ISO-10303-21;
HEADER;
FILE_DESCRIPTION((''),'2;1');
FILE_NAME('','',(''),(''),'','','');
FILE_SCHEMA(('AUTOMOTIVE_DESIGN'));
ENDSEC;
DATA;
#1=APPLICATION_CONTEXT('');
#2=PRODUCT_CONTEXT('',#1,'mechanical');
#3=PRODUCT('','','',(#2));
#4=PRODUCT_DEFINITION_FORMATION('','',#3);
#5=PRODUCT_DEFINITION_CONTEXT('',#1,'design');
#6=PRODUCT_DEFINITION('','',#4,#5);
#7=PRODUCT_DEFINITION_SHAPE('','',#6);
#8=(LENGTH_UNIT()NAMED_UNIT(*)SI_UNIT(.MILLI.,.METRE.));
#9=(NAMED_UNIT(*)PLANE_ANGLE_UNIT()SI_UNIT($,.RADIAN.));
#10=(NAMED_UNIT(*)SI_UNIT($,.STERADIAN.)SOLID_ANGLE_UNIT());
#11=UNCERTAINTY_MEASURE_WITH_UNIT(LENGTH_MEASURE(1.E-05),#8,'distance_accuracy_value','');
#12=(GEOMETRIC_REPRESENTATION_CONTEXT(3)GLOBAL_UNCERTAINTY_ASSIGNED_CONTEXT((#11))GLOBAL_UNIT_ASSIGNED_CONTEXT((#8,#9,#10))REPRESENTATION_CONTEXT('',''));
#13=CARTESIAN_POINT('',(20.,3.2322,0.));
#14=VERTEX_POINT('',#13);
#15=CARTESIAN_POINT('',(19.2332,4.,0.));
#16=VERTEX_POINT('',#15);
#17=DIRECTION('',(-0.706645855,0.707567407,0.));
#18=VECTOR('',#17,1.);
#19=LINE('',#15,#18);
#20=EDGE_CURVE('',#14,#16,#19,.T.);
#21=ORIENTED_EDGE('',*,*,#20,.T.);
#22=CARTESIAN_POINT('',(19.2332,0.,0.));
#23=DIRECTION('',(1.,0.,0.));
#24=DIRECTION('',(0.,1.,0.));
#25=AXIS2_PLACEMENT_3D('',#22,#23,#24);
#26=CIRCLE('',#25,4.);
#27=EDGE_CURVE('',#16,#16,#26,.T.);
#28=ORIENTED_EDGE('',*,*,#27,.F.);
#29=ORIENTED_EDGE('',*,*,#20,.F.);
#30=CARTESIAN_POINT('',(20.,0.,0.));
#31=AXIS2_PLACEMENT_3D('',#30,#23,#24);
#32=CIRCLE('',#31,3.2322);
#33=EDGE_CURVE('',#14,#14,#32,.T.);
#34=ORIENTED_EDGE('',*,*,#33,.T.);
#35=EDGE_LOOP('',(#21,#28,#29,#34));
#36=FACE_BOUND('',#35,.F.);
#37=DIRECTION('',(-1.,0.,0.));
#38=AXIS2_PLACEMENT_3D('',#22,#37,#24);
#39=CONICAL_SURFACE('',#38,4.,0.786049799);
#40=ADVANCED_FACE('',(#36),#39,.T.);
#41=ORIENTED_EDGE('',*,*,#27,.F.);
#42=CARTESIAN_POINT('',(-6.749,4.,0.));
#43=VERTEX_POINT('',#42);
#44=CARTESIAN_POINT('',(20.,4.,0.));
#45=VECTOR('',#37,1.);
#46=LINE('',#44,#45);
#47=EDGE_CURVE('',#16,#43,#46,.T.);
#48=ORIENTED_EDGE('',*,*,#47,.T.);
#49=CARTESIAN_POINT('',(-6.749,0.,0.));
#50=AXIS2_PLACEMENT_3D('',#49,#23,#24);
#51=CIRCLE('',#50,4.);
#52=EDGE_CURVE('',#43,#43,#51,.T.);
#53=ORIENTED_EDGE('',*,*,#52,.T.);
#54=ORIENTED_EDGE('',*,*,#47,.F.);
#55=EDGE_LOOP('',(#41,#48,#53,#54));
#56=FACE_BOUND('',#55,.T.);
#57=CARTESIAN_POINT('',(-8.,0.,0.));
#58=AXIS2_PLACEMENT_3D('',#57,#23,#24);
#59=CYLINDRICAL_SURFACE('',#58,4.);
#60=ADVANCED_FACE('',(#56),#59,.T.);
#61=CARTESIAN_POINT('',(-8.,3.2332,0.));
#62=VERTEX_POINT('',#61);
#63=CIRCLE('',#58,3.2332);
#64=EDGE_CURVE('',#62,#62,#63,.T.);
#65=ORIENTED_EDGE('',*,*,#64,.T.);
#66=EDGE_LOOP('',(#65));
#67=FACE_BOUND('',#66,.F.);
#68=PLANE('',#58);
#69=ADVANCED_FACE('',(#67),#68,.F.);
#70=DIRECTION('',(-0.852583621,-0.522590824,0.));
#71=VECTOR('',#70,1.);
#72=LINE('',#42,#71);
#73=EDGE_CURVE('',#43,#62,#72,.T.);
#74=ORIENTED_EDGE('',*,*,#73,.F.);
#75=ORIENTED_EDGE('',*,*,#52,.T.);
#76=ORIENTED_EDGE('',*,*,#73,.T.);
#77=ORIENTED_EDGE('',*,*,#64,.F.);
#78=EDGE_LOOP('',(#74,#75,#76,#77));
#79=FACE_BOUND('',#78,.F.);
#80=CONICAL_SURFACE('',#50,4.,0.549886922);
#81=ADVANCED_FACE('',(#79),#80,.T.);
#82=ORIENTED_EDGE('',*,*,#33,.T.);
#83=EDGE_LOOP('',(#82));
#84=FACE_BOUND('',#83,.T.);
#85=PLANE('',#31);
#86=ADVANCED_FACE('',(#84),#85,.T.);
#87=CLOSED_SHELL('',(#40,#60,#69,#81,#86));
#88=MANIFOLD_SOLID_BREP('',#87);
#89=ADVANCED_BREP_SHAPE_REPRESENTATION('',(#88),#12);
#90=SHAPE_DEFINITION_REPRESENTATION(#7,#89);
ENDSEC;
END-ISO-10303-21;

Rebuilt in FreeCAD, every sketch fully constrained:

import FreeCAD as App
import Part
import Sketcher
from FreeCAD import Vector


def edges_at(feature, points):
    """Names of the edges that pass closest to the given points."""
    edges = feature.Shape.Edges
    near = lambda p: min(range(len(edges)), key=lambda i: edges[i].distToShape(Part.Vertex(*p))[0])
    return sorted({f"Edge{near(p) + 1}" for p in points})


def add_polygon(sketch, points):
    """Adds a closed chain of lines whose ends are joined by coincident constraints."""
    first, n = sketch.GeometryCount, len(points)
    for a, b in zip(points, points[1:] + points[:1]):
        sketch.addGeometry(Part.LineSegment(App.Vector(*a, 0), App.Vector(*b, 0)), False)
    for i in range(n):
        sketch.addConstraint(Sketcher.Constraint("Coincident", first + i, 2, first + (i + 1) % n, 1))

doc = App.newDocument("Part")
params = doc.addObject("Spreadsheet::Sheet", "Params")
for row, (alias, value) in enumerate([
    ("sketch1_height", "4 mm"),
    ("revolution_angle", "360 deg"),
    ("chamfer_size", "0.7678 mm"),
    ("chamfer_size2", "0.7668 mm"),
    ("chamfer2_size", "1.251 mm"),
    ("chamfer2_size2", "0.7668 mm"),
], start=1):
    params.set(f"A{row}", alias)
    params.set(f"B{row}", "=" + value)
    params.setAlias(f"B{row}", alias)

body = doc.addObject("PartDesign::Body", "Body")

sketch1 = doc.addObject("Sketcher::SketchObject", "Sketch")
body.addObject(sketch1)
sketch1.AttachmentSupport = (doc.XY_Plane, [""])
sketch1.MapMode = "FlatFace"
add_polygon(sketch1, [(20, 0), (20, 4), (-8, 4), (-8, 0)])
sketch1.addConstraint(Sketcher.Constraint("Vertical", 0))
sketch1.addConstraint(Sketcher.Constraint("Horizontal", 1))
sketch1.addConstraint(Sketcher.Constraint("Vertical", 2))
sketch1.addConstraint(Sketcher.Constraint("Horizontal", 3))
sketch1.addConstraint(Sketcher.Constraint("PointOnObject", 2, 2, -1))
sketch1.addConstraint(Sketcher.Constraint("DistanceX", -1, 1, 0, 2, 20.0))
sketch1.addConstraint(Sketcher.Constraint("DistanceX", 1, 2, -1, 1, 8.0))
sketch1.addConstraint(Sketcher.Constraint("DistanceY", 0, 1, 0, 2, 4.0))
sketch1.setExpression("Constraints[11]", "Params.sketch1_height")
revolution = doc.addObject("PartDesign::Revolution", "Revolution")
body.addObject(revolution)
revolution.Profile = sketch1
revolution.ReferenceAxis = (sketch1, ["H_Axis"])
revolution.setExpression("Angle", "Params.revolution_angle")
doc.recompute()

chamfer = doc.addObject("PartDesign::Chamfer", "Chamfer")
body.addObject(chamfer)
chamfer.Base = (revolution, edges_at(revolution, [(20, -4, 0)]))
chamfer.ChamferType = "Two distances"
chamfer.setExpression("Size", "Params.chamfer_size")
chamfer.setExpression("Size2", "Params.chamfer_size2")
doc.recompute()

chamfer2 = doc.addObject("PartDesign::Chamfer", "Chamfer001")
body.addObject(chamfer2)
chamfer2.Base = (chamfer, edges_at(chamfer, [(-8, -4, 0)]))
chamfer2.ChamferType = "Two distances"
chamfer2.setExpression("Size", "Params.chamfer2_size")
chamfer2.setExpression("Size2", "Params.chamfer2_size2")

doc.recompute()
